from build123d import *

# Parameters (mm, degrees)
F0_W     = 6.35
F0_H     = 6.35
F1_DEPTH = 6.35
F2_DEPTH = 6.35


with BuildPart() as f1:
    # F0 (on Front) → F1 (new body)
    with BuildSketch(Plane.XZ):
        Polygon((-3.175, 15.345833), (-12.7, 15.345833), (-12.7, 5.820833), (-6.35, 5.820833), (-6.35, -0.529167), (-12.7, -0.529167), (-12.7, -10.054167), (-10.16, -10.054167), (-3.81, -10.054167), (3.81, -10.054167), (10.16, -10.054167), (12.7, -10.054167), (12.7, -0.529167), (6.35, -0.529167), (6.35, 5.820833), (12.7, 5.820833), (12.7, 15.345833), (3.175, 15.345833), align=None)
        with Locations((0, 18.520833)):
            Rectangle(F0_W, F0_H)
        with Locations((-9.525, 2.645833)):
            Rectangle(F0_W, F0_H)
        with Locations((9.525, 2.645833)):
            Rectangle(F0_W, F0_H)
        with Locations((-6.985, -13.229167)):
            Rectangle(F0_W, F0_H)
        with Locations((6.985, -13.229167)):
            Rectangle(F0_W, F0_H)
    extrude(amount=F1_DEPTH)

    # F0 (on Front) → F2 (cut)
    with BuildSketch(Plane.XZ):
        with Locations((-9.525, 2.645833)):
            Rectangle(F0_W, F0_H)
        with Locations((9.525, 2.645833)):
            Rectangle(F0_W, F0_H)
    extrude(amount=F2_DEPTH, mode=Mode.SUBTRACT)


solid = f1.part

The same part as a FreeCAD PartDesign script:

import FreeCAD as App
import Part
import Sketcher

V = App.Vector
Q = App.Units.Quantity

doc = App.newDocument("Part")
body = doc.addObject("PartDesign::Body", "Body")

sketch1 = body.newObject("Sketcher::SketchObject", "Sketch")
sketch1.AttachmentSupport = (doc.getObject("XZ_Plane"), [""])
sketch1.MapMode = "FlatFace"
sketch1.addGeometry([
    Part.LineSegment(V(-12.7, 15.3, 0), V(-12.7, -10.1, 0)),
    Part.LineSegment(V(-12.7, -10.1, 0), V(-10.2, -10.1, 0)),
    Part.LineSegment(V(-10.2, -10.1, 0), V(-10.2, -16.4, 0)),
    Part.LineSegment(V(-10.2, -16.4, 0), V(-3.8, -16.4, 0)),
    Part.LineSegment(V(-3.8, -16.4, 0), V(-3.8, -10.1, 0)),
    Part.LineSegment(V(-3.8, -10.1, 0), V(3.8, -10.1, 0)),
    Part.LineSegment(V(3.8, -10.1, 0), V(3.8, -16.4, 0)),
    Part.LineSegment(V(3.8, -16.4, 0), V(10.2, -16.4, 0)),
    Part.LineSegment(V(10.2, -16.4, 0), V(10.2, -10.1, 0)),
    Part.LineSegment(V(10.2, -10.1, 0), V(12.7, -10.1, 0)),
    Part.LineSegment(V(12.7, -10.1, 0), V(12.7, 15.3, 0)),
    Part.LineSegment(V(12.7, 15.3, 0), V(3.2, 15.3, 0)),
    Part.LineSegment(V(3.2, 15.3, 0), V(3.2, 21.7, 0)),
    Part.LineSegment(V(3.2, 21.7, 0), V(-3.2, 21.7, 0)),
    Part.LineSegment(V(-3.2, 21.7, 0), V(-3.2, 15.3, 0)),
    Part.LineSegment(V(-3.2, 15.3, 0), V(-12.7, 15.3, 0)),
], False)
sketch1.addConstraint([
    Sketcher.Constraint("Coincident", 0, 2, 1, 1),
    Sketcher.Constraint("Coincident", 1, 2, 2, 1),
    Sketcher.Constraint("Coincident", 2, 2, 3, 1),
    Sketcher.Constraint("Coincident", 3, 2, 4, 1),
    Sketcher.Constraint("Coincident", 4, 2, 5, 1),
    Sketcher.Constraint("Coincident", 5, 2, 6, 1),
    Sketcher.Constraint("Coincident", 6, 2, 7, 1),
    Sketcher.Constraint("Coincident", 7, 2, 8, 1),
    Sketcher.Constraint("Coincident", 8, 2, 9, 1),
    Sketcher.Constraint("Coincident", 9, 2, 10, 1),
    Sketcher.Constraint("Coincident", 10, 2, 11, 1),
    Sketcher.Constraint("Coincident", 11, 2, 12, 1),
    Sketcher.Constraint("Coincident", 12, 2, 13, 1),
    Sketcher.Constraint("Coincident", 13, 2, 14, 1),
    Sketcher.Constraint("Coincident", 14, 2, 15, 1),
    Sketcher.Constraint("Coincident", 15, 2, 0, 1),
    Sketcher.Constraint("Vertical", 0),
    Sketcher.Constraint("Horizontal", 1),
    Sketcher.Constraint("Vertical", 2),
    Sketcher.Constraint("Horizontal", 3),
    Sketcher.Constraint("Vertical", 4),
    Sketcher.Constraint("Horizontal", 5),
    Sketcher.Constraint("Vertical", 6),
    Sketcher.Constraint("Horizontal", 7),
    Sketcher.Constraint("Vertical", 8),
    Sketcher.Constraint("Horizontal", 9),
    Sketcher.Constraint("Vertical", 10),
    Sketcher.Constraint("Horizontal", 11),
    Sketcher.Constraint("Vertical", 12),
    Sketcher.Constraint("Horizontal", 13),
    Sketcher.Constraint("Vertical", 14),
    Sketcher.Constraint("Horizontal", 15),
    Sketcher.Constraint("Symmetric", 3, 2, 6, 2, -2),
    Sketcher.Constraint("Symmetric", 1, 2, 8, 2, -2),
    Sketcher.Constraint("Symmetric", 11, 2, 14, 2, -2),
    Sketcher.Constraint("Horizontal", 1, 2, 4, 2),
    Sketcher.Constraint("Equal", 1, 9),
    Sketcher.Constraint("Equal", 7, 13),
    Sketcher.Constraint("Equal", 13, 2),
    Sketcher.Constraint("Equal", 8, 12),
    Sketcher.Constraint("DistanceY", 0, 2, 0, 1, Q("1 in")),
    Sketcher.Constraint("DistanceX", 1, 1, 1, 2, Q("0.1 in")),
    Sketcher.Constraint("DistanceX", 5, 1, 5, 2, Q("0.3 in")),
    Sketcher.Constraint("DistanceX", 3, 1, 3, 2, Q("0.25 in")),
    Sketcher.Constraint("DistanceY", 0, 2, -1, 1, 10.054167),
])
pad1 = body.newObject("PartDesign::Pad", "Pad")
pad1.Profile = sketch1
pad1.Length = Q("0.25 in")

sketch2 = body.newObject("Sketcher::SketchObject", "Sketch001")
sketch2.AttachmentSupport = (doc.getObject("XZ_Plane"), [""])
sketch2.MapMode = "FlatFace"
sketch2.addGeometry([
    Part.LineSegment(V(-13, 6, 0), V(-13, -1, 0)),
    Part.LineSegment(V(-13, -1, 0), V(-6, -1, 0)),
    Part.LineSegment(V(-6, -1, 0), V(-6, 6, 0)),
    Part.LineSegment(V(-6, 6, 0), V(-13, 6, 0)),
    Part.LineSegment(V(6, 6, 0), V(6, -1, 0)),
    Part.LineSegment(V(6, -1, 0), V(13, -1, 0)),
    Part.LineSegment(V(13, -1, 0), V(13, 6, 0)),
    Part.LineSegment(V(13, 6, 0), V(6, 6, 0)),
], False)
sketch2.addConstraint([
    Sketcher.Constraint("Coincident", 0, 2, 1, 1),
    Sketcher.Constraint("Coincident", 1, 2, 2, 1),
    Sketcher.Constraint("Coincident", 2, 2, 3, 1),
    Sketcher.Constraint("Coincident", 3, 2, 0, 1),
    Sketcher.Constraint("Coincident", 4, 2, 5, 1),
    Sketcher.Constraint("Coincident", 5, 2, 6, 1),
    Sketcher.Constraint("Coincident", 6, 2, 7, 1),
    Sketcher.Constraint("Coincident", 7, 2, 4, 1),
    Sketcher.Constraint("Vertical", 0),
    Sketcher.Constraint("Horizontal", 1),
    Sketcher.Constraint("Vertical", 2),
    Sketcher.Constraint("Horizontal", 3),
    Sketcher.Constraint("Vertical", 4),
    Sketcher.Constraint("Horizontal", 5),
    Sketcher.Constraint("Vertical", 6),
    Sketcher.Constraint("Horizontal", 7),
    Sketcher.Constraint("Symmetric", 1, 2, 4, 2, -2),
    Sketcher.Constraint("Symmetric", 3, 2, 6, 2, -2),
    Sketcher.Constraint("Equal", 7, 0),
    Sketcher.Constraint("DistanceX", 0, 2, 5, 2, Q("1 in")),
    Sketcher.Constraint("DistanceX", 1, 1, 1, 2, Q("0.25 in")),
    Sketcher.Constraint("DistanceY", 0, 2, -1, 1, 0.529167),
])
pocket1 = body.newObject("PartDesign::Pocket", "Pocket")
pocket1.Profile = sketch2
pocket1.Length = Q("0.25 in")
pocket1.Reversed = True

doc.recompute()
